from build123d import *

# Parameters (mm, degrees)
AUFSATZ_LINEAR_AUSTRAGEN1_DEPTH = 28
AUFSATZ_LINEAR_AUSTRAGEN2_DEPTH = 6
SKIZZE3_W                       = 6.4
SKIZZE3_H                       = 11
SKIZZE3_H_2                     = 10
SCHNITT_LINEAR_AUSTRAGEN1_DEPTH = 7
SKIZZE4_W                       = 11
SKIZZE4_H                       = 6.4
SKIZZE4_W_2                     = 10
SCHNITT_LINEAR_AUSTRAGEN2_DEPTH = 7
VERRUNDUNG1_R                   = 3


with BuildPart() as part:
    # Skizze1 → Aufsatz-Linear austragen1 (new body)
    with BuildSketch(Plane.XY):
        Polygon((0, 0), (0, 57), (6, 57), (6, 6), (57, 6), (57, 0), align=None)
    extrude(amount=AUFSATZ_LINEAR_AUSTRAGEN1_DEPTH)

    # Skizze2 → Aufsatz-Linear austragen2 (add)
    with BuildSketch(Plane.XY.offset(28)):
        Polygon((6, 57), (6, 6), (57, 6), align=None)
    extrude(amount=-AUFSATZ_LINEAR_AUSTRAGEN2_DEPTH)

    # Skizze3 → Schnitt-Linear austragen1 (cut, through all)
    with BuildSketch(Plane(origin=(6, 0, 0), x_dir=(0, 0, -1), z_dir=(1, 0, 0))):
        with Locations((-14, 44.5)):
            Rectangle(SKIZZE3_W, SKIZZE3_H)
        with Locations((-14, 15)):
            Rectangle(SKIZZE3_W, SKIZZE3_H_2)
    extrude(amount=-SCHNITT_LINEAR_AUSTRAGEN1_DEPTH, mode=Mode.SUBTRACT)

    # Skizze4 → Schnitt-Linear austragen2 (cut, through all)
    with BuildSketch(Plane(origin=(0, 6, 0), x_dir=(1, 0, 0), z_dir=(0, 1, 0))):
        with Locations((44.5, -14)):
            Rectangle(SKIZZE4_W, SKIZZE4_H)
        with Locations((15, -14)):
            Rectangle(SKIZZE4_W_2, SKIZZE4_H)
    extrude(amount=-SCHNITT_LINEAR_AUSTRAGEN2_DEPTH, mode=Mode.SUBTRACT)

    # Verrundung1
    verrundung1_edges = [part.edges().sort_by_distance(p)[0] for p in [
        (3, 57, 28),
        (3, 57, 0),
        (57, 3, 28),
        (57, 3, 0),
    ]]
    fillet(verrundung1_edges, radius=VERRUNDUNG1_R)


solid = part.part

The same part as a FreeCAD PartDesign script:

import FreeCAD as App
import Part
import Sketcher

V = App.Vector
Q = App.Units.Quantity


def edges_at(feature, points):
    """Names of the edges that pass closest to the given points."""
    edges = feature.Shape.Edges
    near = lambda p: min(range(len(edges)), key=lambda i: edges[i].distToShape(Part.Vertex(*p))[0])
    return sorted({f"Edge{near(p) + 1}" for p in points})


def add_polygon(sketch, points):
    """Adds a closed chain of lines whose ends are joined by coincident constraints."""
    first, n = sketch.GeometryCount, len(points)
    for a, b in zip(points, points[1:] + points[:1]):
        sketch.addGeometry(Part.LineSegment(App.Vector(*a, 0), App.Vector(*b, 0)), False)
    for i in range(n):
        sketch.addConstraint(Sketcher.Constraint("Coincident", first + i, 2, first + (i + 1) % n, 1))

doc = App.newDocument("Part")
body = doc.addObject("PartDesign::Body", "Body")

# Sketch on XY plane
sketch1 = body.newObject("Sketcher::SketchObject", "Sketch")
sketch1.AttachmentSupport = (doc.getObject("XY_Plane"), [""])
sketch1.MapMode = "FlatFace"
add_polygon(sketch1, [(0, 57), (0, 0), (57, 0), (57, 6), (6, 6), (6, 57)])  # lines 0-5
sketch1.addConstraint(Sketcher.Constraint("Vertical", 0))
sketch1.addConstraint(Sketcher.Constraint("Horizontal", 1))
sketch1.addConstraint(Sketcher.Constraint("Vertical", 2))
sketch1.addConstraint(Sketcher.Constraint("Horizontal", 3))
sketch1.addConstraint(Sketcher.Constraint("Vertical", 4))
sketch1.addConstraint(Sketcher.Constraint("Horizontal", 5))
sketch1.addConstraint(Sketcher.Constraint("Coincident", 0, 2, -1, 1))
sketch1.addConstraint(Sketcher.Constraint("Equal", 1, 0))
sketch1.addConstraint(Sketcher.Constraint("Equal", 5, 2))
sketch1.addConstraint(Sketcher.Constraint("DistanceX", 1, 1, 1, 2, Q("57 mm")))
sketch1.addConstraint(Sketcher.Constraint("DistanceX", 3, 2, 3, 1, Q("51 mm")))
pad1 = body.newObject("PartDesign::Pad", "Pad")
pad1.Profile = sketch1
pad1.Length = 28

# Sketch on XY plane
sketch2 = body.newObject("Sketcher::SketchObject", "Sketch001")
sketch2.AttachmentSupport = (doc.getObject("XY_Plane"), [""])
sketch2.MapMode = "FlatFace"
sketch2.AttachmentOffset = App.Placement(V(0, 0, 28), App.Rotation())
add_polygon(sketch2, [(6, 57), (6, 6), (57, 6)])  # lines 0-2
sketch2.addConstraint(Sketcher.Constraint("Vertical", 0))
sketch2.addConstraint(Sketcher.Constraint("Horizontal", 1))
sketch2.addConstraint(Sketcher.Constraint("Equal", 1, 0))
sketch2.addConstraint(Sketcher.Constraint("DistanceX", 1, 1, 1, 2, Q("51 mm")))
sketch2.addConstraint(Sketcher.Constraint("DistanceX", -1, 1, 0, 2, Q("6 mm")))
sketch2.addConstraint(Sketcher.Constraint("DistanceY", -1, 1, 0, 2, Q("6 mm")))
pad2 = body.newObject("PartDesign::Pad", "Pad001")
pad2.Profile = sketch2
pad2.Length = 6
pad2.Reversed = True

# Sketch on YZ plane
sketch3 = body.newObject("Sketcher::SketchObject", "Sketch002")
sketch3.AttachmentSupport = (doc.getObject("YZ_Plane"), [""])
sketch3.MapMode = "FlatFace"
sketch3.AttachmentOffset = App.Placement(V(0, 0, 6), App.Rotation())
add_polygon(sketch3, [(50, 17), (39, 17), (39, 11), (50, 11)])  # lines 0-3
add_polygon(sketch3, [(20, 17), (10, 17), (10, 11), (20, 11)])  # lines 4-7
sketch3.addConstraint(Sketcher.Constraint("Horizontal", 0))
sketch3.addConstraint(Sketcher.Constraint("Vertical", 1))
sketch3.addConstraint(Sketcher.Constraint("Horizontal", 2))
sketch3.addConstraint(Sketcher.Constraint("Vertical", 3))
sketch3.addConstraint(Sketcher.Constraint("Horizontal", 4))
sketch3.addConstraint(Sketcher.Constraint("Vertical", 5))
sketch3.addConstraint(Sketcher.Constraint("Horizontal", 6))
sketch3.addConstraint(Sketcher.Constraint("Vertical", 7))
sketch3.addConstraint(Sketcher.Constraint("Horizontal", 3, 2, 4, 2))
sketch3.addConstraint(Sketcher.Constraint("Horizontal", 2, 2, 5, 2))
sketch3.addConstraint(Sketcher.Constraint("DistanceX", 0, 2, 0, 1, Q("11 mm")))
sketch3.addConstraint(Sketcher.Constraint("DistanceX", 4, 2, 4, 1, Q("10 mm")))
sketch3.addConstraint(Sketcher.Constraint("DistanceY", 1, 2, 1, 1, Q("6.4 mm")))
sketch3.addConstraint(Sketcher.Constraint("DistanceX", -1, 1, 0, 2, Q("39 mm")))
sketch3.addConstraint(Sketcher.Constraint("DistanceX", -1, 1, 4, 2, Q("10 mm")))
sketch3.addConstraint(Sketcher.Constraint("DistanceY", -1, 1, 0, 2, Q("17.2 mm")))
pocket1 = body.newObject("PartDesign::Pocket", "Pocket")
pocket1.Profile = sketch3
pocket1.Type = "ThroughAll"

# Sketch on XZ plane
sketch4 = body.newObject("Sketcher::SketchObject", "Sketch003")
sketch4.AttachmentSupport = (doc.getObject("XZ_Plane"), [""])
sketch4.MapMode = "FlatFace"
sketch4.AttachmentOffset = App.Placement(V(0, 0, -6), App.Rotation())
add_polygon(sketch4, [(39, 11), (39, 17), (50, 17), (50, 11)])  # lines 0-3
add_polygon(sketch4, [(10, 11), (10, 17), (20, 17), (20, 11)])  # lines 4-7
sketch4.addConstraint(Sketcher.Constraint("Vertical", 0))
sketch4.addConstraint(Sketcher.Constraint("Horizontal", 1))
sketch4.addConstraint(Sketcher.Constraint("Vertical", 2))
sketch4.addConstraint(Sketcher.Constraint("Horizontal", 3))
sketch4.addConstraint(Sketcher.Constraint("Vertical", 4))
sketch4.addConstraint(Sketcher.Constraint("Horizontal", 5))
sketch4.addConstraint(Sketcher.Constraint("Vertical", 6))
sketch4.addConstraint(Sketcher.Constraint("Horizontal", 7))
sketch4.addConstraint(Sketcher.Constraint("Horizontal", 1, 2, 4, 2))
sketch4.addConstraint(Sketcher.Constraint("Horizontal", 3, 2, 6, 2))
sketch4.addConstraint(Sketcher.Constraint("DistanceX", 1, 1, 1, 2, Q("11 mm")))
sketch4.addConstraint(Sketcher.Constraint("DistanceX", 5, 1, 5, 2, Q("10 mm")))
sketch4.addConstraint(Sketcher.Constraint("DistanceY", 0, 1, 0, 2, Q("6.4 mm")))
sketch4.addConstraint(Sketcher.Constraint("DistanceX", -1, 1, 0, 2, Q("39 mm")))
sketch4.addConstraint(Sketcher.Constraint("DistanceX", -1, 1, 4, 2, Q("10 mm")))
sketch4.addConstraint(Sketcher.Constraint("DistanceY", -1, 1, 0, 2, Q("17.2 mm")))
pocket2 = body.newObject("PartDesign::Pocket", "Pocket001")
pocket2.Profile = sketch4
pocket2.Type = "ThroughAll"
pocket2.Reversed = True
doc.recompute()

fillet = body.newObject("PartDesign::Fillet", "Fillet")
fillet.Base = (pocket2, edges_at(pocket2, [
    (3, 57, 28),
    (3, 57, 0),
    (57, 3, 28),
    (57, 3, 0),
]))
fillet.Radius = 3

doc.recompute()
